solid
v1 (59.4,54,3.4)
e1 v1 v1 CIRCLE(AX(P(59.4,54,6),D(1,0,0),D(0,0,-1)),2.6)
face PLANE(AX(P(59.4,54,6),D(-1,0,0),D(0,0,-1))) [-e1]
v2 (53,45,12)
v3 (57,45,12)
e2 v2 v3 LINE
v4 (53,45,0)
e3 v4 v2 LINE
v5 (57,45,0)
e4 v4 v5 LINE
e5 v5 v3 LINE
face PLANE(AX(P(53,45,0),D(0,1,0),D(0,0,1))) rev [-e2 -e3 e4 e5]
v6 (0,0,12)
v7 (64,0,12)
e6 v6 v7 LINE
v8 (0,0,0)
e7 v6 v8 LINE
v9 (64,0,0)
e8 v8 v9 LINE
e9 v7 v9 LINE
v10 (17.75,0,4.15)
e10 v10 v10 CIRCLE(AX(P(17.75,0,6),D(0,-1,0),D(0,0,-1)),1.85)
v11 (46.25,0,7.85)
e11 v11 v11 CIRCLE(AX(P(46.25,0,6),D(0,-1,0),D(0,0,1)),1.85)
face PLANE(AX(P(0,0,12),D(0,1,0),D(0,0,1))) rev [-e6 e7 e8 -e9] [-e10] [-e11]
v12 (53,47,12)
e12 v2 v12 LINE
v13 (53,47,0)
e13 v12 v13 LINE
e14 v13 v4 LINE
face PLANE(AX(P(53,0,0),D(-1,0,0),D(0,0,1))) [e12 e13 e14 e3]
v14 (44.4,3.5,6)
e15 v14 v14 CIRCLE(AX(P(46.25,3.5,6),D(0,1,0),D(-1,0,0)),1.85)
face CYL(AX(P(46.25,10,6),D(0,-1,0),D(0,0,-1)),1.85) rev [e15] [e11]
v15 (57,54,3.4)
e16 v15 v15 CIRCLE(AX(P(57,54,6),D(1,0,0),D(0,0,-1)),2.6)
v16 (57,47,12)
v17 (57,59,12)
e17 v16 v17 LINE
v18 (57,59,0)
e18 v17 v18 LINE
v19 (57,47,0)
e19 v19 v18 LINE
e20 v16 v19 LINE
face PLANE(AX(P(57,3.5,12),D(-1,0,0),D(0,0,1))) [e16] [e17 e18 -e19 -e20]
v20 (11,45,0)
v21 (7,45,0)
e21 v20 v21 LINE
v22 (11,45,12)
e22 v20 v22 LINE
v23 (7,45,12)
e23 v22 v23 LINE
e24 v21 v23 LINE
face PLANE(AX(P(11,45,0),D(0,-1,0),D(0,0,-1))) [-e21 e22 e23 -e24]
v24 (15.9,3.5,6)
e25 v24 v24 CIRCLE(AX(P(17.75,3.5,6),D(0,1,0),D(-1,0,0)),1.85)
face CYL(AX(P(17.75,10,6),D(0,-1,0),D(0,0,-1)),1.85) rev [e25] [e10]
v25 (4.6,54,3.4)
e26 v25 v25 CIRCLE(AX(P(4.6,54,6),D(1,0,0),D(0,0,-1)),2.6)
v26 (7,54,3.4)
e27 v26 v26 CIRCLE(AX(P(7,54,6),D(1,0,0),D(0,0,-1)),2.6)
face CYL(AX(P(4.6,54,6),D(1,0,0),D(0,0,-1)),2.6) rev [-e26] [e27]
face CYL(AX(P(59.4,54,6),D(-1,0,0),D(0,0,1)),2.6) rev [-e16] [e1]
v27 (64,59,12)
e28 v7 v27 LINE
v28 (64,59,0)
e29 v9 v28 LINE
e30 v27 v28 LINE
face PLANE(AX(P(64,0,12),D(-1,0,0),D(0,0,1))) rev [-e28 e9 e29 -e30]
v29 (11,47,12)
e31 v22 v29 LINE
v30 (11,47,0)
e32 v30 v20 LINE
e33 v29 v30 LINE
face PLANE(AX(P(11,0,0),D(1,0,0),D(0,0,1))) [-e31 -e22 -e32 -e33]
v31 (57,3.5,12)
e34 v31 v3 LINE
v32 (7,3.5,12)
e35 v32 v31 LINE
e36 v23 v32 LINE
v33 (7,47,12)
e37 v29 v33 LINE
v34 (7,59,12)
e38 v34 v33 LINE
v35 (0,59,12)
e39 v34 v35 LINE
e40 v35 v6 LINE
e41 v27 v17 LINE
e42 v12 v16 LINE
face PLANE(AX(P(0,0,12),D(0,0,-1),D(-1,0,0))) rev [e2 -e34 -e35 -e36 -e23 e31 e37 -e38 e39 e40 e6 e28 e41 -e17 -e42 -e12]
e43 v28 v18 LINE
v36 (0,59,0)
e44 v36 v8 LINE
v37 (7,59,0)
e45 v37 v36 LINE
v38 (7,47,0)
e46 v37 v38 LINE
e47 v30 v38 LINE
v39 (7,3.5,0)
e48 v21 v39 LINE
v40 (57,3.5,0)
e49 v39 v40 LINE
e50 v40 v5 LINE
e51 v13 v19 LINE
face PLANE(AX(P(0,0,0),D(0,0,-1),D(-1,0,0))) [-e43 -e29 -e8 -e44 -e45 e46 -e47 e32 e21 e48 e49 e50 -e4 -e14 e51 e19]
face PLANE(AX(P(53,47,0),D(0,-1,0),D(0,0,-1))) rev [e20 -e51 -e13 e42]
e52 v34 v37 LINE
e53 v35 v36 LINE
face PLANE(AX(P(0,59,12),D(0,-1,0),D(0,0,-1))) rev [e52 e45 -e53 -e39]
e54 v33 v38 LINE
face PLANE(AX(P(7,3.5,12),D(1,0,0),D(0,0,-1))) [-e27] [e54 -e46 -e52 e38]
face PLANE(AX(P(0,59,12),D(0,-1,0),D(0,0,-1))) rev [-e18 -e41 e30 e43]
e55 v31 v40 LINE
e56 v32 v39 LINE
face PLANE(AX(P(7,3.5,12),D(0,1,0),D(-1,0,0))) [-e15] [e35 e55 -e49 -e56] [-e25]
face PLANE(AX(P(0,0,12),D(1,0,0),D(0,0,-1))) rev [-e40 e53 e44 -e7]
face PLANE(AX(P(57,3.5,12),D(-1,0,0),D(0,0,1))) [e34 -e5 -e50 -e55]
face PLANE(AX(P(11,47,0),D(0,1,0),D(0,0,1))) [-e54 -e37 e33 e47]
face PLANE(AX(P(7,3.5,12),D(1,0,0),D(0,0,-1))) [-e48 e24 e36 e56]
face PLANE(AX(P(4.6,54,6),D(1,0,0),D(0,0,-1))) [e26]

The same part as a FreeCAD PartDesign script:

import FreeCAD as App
import Part
import Sketcher
from FreeCAD import Vector

doc = App.newDocument("Part")
body = doc.addObject("PartDesign::Body", "Body")

# Sketch on XY plane
sketch1 = body.newObject("Sketcher::SketchObject", "Sketch")
sketch1.AttachmentSupport = (doc.getObject("XY_Plane"), [""])
sketch1.MapMode = "FlatFace"
sketch1.addGeometry(Part.LineSegment(Vector(0, 59, 0), Vector(0, 0, 0)), False)
sketch1.addGeometry(Part.LineSegment(Vector(0, 0, 0), Vector(64, 0, 0)), False)
sketch1.addGeometry(Part.LineSegment(Vector(64, 0, 0), Vector(64, 59, 0)), False)
sketch1.addGeometry(Part.LineSegment(Vector(64, 59, 0), Vector(0, 59, 0)), False)
sketch1.addGeometry(Part.LineSegment(Vector(57, 4, 0), Vector(7, 4, 0)), False)
sketch1.addGeometry(Part.LineSegment(Vector(7, 4, 0), Vector(7, 56, 0)), False)
sketch1.addGeometry(Part.LineSegment(Vector(7, 56, 0), Vector(57, 56, 0)), False)
sketch1.addGeometry(Part.LineSegment(Vector(57, 56, 0), Vector(57, 4, 0)), False)
sketch1.addConstraint(Sketcher.Constraint("Coincident", 0, 2, 1, 1))
sketch1.addConstraint(Sketcher.Constraint("Coincident", 1, 2, 2, 1))
sketch1.addConstraint(Sketcher.Constraint("Coincident", 2, 2, 3, 1))
sketch1.addConstraint(Sketcher.Constraint("Coincident", 3, 2, 0, 1))
sketch1.addConstraint(Sketcher.Constraint("Coincident", 4, 2, 5, 1))
sketch1.addConstraint(Sketcher.Constraint("Coincident", 5, 2, 6, 1))
sketch1.addConstraint(Sketcher.Constraint("Coincident", 6, 2, 7, 1))
sketch1.addConstraint(Sketcher.Constraint("Coincident", 7, 2, 4, 1))
sketch1.addConstraint(Sketcher.Constraint("Vertical", 0))
sketch1.addConstraint(Sketcher.Constraint("Horizontal", 1))
sketch1.addConstraint(Sketcher.Constraint("Vertical", 2))
sketch1.addConstraint(Sketcher.Constraint("Horizontal", 3))
sketch1.addConstraint(Sketcher.Constraint("Horizontal", 4))
sketch1.addConstraint(Sketcher.Constraint("Vertical", 5))
sketch1.addConstraint(Sketcher.Constraint("Horizontal", 6))
sketch1.addConstraint(Sketcher.Constraint("Vertical", 7))
sketch1.addConstraint(Sketcher.Constraint("Coincident", 0, 2, -1, 1))
sketch1.addConstraint(Sketcher.Constraint("DistanceX", 1, 1, 1, 2, 64.0))
sketch1.addConstraint(Sketcher.Constraint("DistanceX", 4, 2, 4, 1, 50.0))
sketch1.addConstraint(Sketcher.Constraint("DistanceY", 0, 2, 0, 1, 59.0))
sketch1.addConstraint(Sketcher.Constraint("DistanceY", 5, 1, 5, 2, 52.0))
sketch1.addConstraint(Sketcher.Constraint("DistanceX", -1, 1, 4, 2, 7.0))
sketch1.addConstraint(Sketcher.Constraint("DistanceY", -1, 1, 4, 2, 3.5))
pad1 = body.newObject("PartDesign::Pad", "Pad")
pad1.Profile = sketch1
pad1.Length = 12

# Sketch on XZ plane
sketch2 = body.newObject("Sketcher::SketchObject", "Sketch001")
sketch2.AttachmentSupport = (doc.getObject("XZ_Plane"), [""])
sketch2.MapMode = "FlatFace"
sketch2.AttachmentOffset = App.Placement(Vector(0, 0, -59), App.Rotation())
sketch2.addGeometry(Part.Circle(Vector(18, 9.7, 0), Vector(0, 0, 1), 1.9), False)
sketch2.addGeometry(Part.Circle(Vector(46, 9.7, 0), Vector(0, 0, 1), 1.9), False)
sketch2.addGeometry(Part.Circle(Vector(32, 9.7, 0), Vector(0, 0, 1), 1.9), False)
sketch2.addConstraint(Sketcher.Constraint("Equal", 0, 1))
sketch2.addConstraint(Sketcher.Constraint("Equal", 1, 2))
sketch2.addConstraint(Sketcher.Constraint("Horizontal", 0, 3, 1, 3))
sketch2.addConstraint(Sketcher.Constraint("Horizontal", 1, 3, 2, 3))
sketch2.addConstraint(Sketcher.Constraint("Diameter", 0, 3.7))
sketch2.addConstraint(Sketcher.Constraint("DistanceX", -1, 1, 0, 3, 18.0))
sketch2.addConstraint(Sketcher.Constraint("DistanceX", -1, 1, 1, 3, 46.0))
sketch2.addConstraint(Sketcher.Constraint("DistanceX", -1, 1, 2, 3, 32.0))
sketch2.addConstraint(Sketcher.Constraint("DistanceY", -1, 1, 0, 3, 9.7))
pocket1 = body.newObject("PartDesign::Pocket", "Pocket")
pocket1.Profile = sketch2
pocket1.Length = 10
pocket1.Reversed = True

# Sketch on XZ plane
sketch3 = body.newObject("Sketcher::SketchObject", "Sketch002")
sketch3.AttachmentSupport = (doc.getObject("XZ_Plane"), [""])
sketch3.MapMode = "FlatFace"
sketch3.addGeometry(Part.Circle(Vector(17.8, 6, 0), Vector(0, 0, 1), 1.9), False)
sketch3.addGeometry(Part.Circle(Vector(46.2, 6, 0), Vector(0, 0, 1), 1.9), False)
sketch3.addConstraint(Sketcher.Constraint("Equal", 0, 1))
sketch3.addConstraint(Sketcher.Constraint("Horizontal", 0, 3, 1, 3))
sketch3.addConstraint(Sketcher.Constraint("Diameter", 0, 3.7))
sketch3.addConstraint(Sketcher.Constraint("DistanceY", -1, 1, 0, 3, 6.0))
sketch3.addConstraint(Sketcher.Constraint("DistanceX", 0, 3, 1, 3, 28.5))
sketch3.addConstraint(Sketcher.Constraint("DistanceX", -1, 1, 0, 3, 17.75))
pocket2 = body.newObject("PartDesign::Pocket", "Pocket001")
pocket2.Profile = sketch3
pocket2.Length = 10

# Sketch on XZ plane
sketch4 = body.newObject("Sketcher::SketchObject", "Sketch003")
sketch4.AttachmentSupport = (doc.getObject("XZ_Plane"), [""])
sketch4.MapMode = "FlatFace"
sketch4.AttachmentOffset = App.Placement(Vector(0, 0, -59), App.Rotation())
sketch4.addGeometry(Part.LineSegment(Vector(7, 0, 0), Vector(7, 12, 0)), False)
sketch4.addGeometry(Part.LineSegment(Vector(7, 12, 0), Vector(57, 12, 0)), False)
sketch4.addGeometry(Part.LineSegment(Vector(57, 12, 0), Vector(57, 0, 0)), False)
sketch4.addGeometry(Part.LineSegment(Vector(57, 0, 0), Vector(7, 0, 0)), False)
sketch4.addGeometry(Part.Circle(Vector(18, 9.7, 0), Vector(0, 0, 1), 1.9), False)
sketch4.addGeometry(Part.Circle(Vector(32, 9.7, 0), Vector(0, 0, 1), 1.9), False)
sketch4.addGeometry(Part.Circle(Vector(46, 9.7, 0), Vector(0, 0, 1), 1.9), False)
sketch4.addConstraint(Sketcher.Constraint("Coincident", 0, 2, 1, 1))
sketch4.addConstraint(Sketcher.Constraint("Coincident", 1, 2, 2, 1))
sketch4.addConstraint(Sketcher.Constraint("Coincident", 2, 2, 3, 1))
sketch4.addConstraint(Sketcher.Constraint("Coincident", 3, 2, 0, 1))
sketch4.addConstraint(Sketcher.Constraint("Vertical", 0))
sketch4.addConstraint(Sketcher.Constraint("Horizontal", 1))
sketch4.addConstraint(Sketcher.Constraint("Vertical", 2))
sketch4.addConstraint(Sketcher.Constraint("Horizontal", 3))
sketch4.addConstraint(Sketcher.Constraint("Equal", 4, 5))
sketch4.addConstraint(Sketcher.Constraint("Equal", 5, 6))
sketch4.addConstraint(Sketcher.Constraint("PointOnObject", 2, 2, -1))
sketch4.addConstraint(Sketcher.Constraint("Horizontal", 4, 3, 5, 3))
sketch4.addConstraint(Sketcher.Constraint("Horizontal", 5, 3, 6, 3))
sketch4.addConstraint(Sketcher.Constraint("Diameter", 4, 3.7))
sketch4.addConstraint(Sketcher.Constraint("DistanceX", 1, 1, 1, 2, 50.0))
sketch4.addConstraint(Sketcher.Constraint("DistanceY", 0, 1, 0, 2, 12.0))
sketch4.addConstraint(Sketcher.Constraint("DistanceX", -1, 1, 4, 3, 18.0))
sketch4.addConstraint(Sketcher.Constraint("DistanceX", -1, 1, 5, 3, 32.0))
sketch4.addConstraint(Sketcher.Constraint("DistanceX", -1, 1, 6, 3, 46.0))
sketch4.addConstraint(Sketcher.Constraint("DistanceX", -1, 1, 0, 2, 7.0))
sketch4.addConstraint(Sketcher.Constraint("DistanceY", -1, 1, 4, 3, 9.7))
pocket3 = body.newObject("PartDesign::Pocket", "Pocket002")
pocket3.Profile = sketch4
pocket3.Length = 10
pocket3.Reversed = True

# Sketch on YZ plane
sketch5 = body.newObject("Sketcher::SketchObject", "Sketch004")
sketch5.AttachmentSupport = (doc.getObject("YZ_Plane"), [""])
sketch5.MapMode = "FlatFace"
sketch5.AttachmentOffset = App.Placement(Vector(0, 0, 7), App.Rotation())
sketch5.addGeometry(Part.Circle(Vector(54, 6, 0), Vector(0, 0, 1), 2.6), False)
sketch5.addConstraint(Sketcher.Constraint("Diameter", 0, 5.2))
sketch5.addConstraint(Sketcher.Constraint("DistanceX", -1, 1, 0, 3, 54.0))
sketch5.addConstraint(Sketcher.Constraint("DistanceY", -1, 1, 0, 3, 6.0))
pocket4 = body.newObject("PartDesign::Pocket", "Pocket003")
pocket4.Profile = sketch5
pocket4.Length = 2.4
doc.recompute()

datumplane = body.newObject("PartDesign::Plane", "DatumPlane")
datumplane.AttachmentSupport = (doc.getObject("YZ_Plane"), [""])
datumplane.MapMode = "FlatFace"
datumplane.AttachmentOffset = App.Placement(Vector(0, 0, 32), App.Rotation())
mirrored = body.newObject("PartDesign::Mirrored", "Mirrored")
mirrored.Originals = [pocket4]
mirrored.MirrorPlane = (datumplane, [""])
body.Tip = mirrored

# Sketch on YZ plane
sketch6 = body.newObject("Sketcher::SketchObject", "Sketch005")
sketch6.AttachmentSupport = (doc.getObject("YZ_Plane"), [""])
sketch6.MapMode = "FlatFace"
sketch6.AttachmentOffset = App.Placement(Vector(0, 0, 57), App.Rotation())
sketch6.addGeometry(Part.LineSegment(Vector(47, 0, 0), Vector(45, 0, 0)), False)
sketch6.addGeometry(Part.LineSegment(Vector(45, 0, 0), Vector(45, 12, 0)), False)
sketch6.addGeometry(Part.LineSegment(Vector(45, 12, 0), Vector(47, 12, 0)), False)
sketch6.addGeometry(Part.LineSegment(Vector(47, 12, 0), Vector(47, 0, 0)), False)
sketch6.addConstraint(Sketcher.Constraint("Coincident", 0, 2, 1, 1))
sketch6.addConstraint(Sketcher.Constraint("Coincident", 1, 2, 2, 1))
sketch6.addConstraint(Sketcher.Constraint("Coincident", 2, 2, 3, 1))
sketch6.addConstraint(Sketcher.Constraint("Coincident", 3, 2, 0, 1))
sketch6.addConstraint(Sketcher.Constraint("Horizontal", 0))
sketch6.addConstraint(Sketcher.Constraint("Vertical", 1))
sketch6.addConstraint(Sketcher.Constraint("Horizontal", 2))
sketch6.addConstraint(Sketcher.Constraint("Vertical", 3))
sketch6.addConstraint(Sketcher.Constraint("PointOnObject", 0, 2, -1))
sketch6.addConstraint(Sketcher.Constraint("DistanceX", 0, 2, 0, 1, 2.0))
sketch6.addConstraint(Sketcher.Constraint("DistanceY", 1, 1, 1, 2, 12.0))
sketch6.addConstraint(Sketcher.Constraint("DistanceX", -1, 1, 0, 2, 45.0))
pad2 = body.newObject("PartDesign::Pad", "Pad001")
pad2.Profile = sketch6
pad2.Length = 4
pad2.Reversed = True
doc.recompute()

datumplane2 = body.newObject("PartDesign::Plane", "DatumPlane001")
datumplane2.AttachmentSupport = (doc.getObject("YZ_Plane"), [""])
datumplane2.MapMode = "FlatFace"
datumplane2.AttachmentOffset = App.Placement(Vector(0, 0, 32), App.Rotation())
mirrored2 = body.newObject("PartDesign::Mirrored", "Mirrored001")
mirrored2.Originals = [pad2]
mirrored2.MirrorPlane = (datumplane2, [""])
body.Tip = mirrored2

doc.recompute()
